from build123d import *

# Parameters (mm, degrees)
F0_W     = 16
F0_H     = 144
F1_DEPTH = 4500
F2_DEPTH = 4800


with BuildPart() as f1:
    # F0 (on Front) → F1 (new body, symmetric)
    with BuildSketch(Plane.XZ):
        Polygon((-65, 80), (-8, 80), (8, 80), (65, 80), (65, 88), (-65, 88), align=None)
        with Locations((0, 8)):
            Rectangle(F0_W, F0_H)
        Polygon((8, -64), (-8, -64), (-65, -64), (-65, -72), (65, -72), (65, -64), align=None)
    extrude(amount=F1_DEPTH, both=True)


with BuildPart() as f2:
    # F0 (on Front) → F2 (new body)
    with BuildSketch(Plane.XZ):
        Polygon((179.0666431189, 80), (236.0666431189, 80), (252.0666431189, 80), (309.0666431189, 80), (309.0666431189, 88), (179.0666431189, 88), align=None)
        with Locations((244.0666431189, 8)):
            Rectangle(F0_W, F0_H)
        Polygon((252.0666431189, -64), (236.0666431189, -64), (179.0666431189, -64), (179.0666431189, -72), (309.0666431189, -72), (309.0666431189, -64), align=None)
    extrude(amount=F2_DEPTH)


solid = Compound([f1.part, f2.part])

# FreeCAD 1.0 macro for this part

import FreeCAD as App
import Part
import Sketcher

V = App.Vector
Q = App.Units.Quantity


def add_polygon(sketch, points):
    """Adds a closed chain of lines whose ends are joined by coincident constraints."""
    first, n = sketch.GeometryCount, len(points)
    for a, b in zip(points, points[1:] + points[:1]):
        sketch.addGeometry(Part.LineSegment(App.Vector(*a, 0), App.Vector(*b, 0)), False)
    for i in range(n):
        sketch.addConstraint(Sketcher.Constraint("Coincident", first + i, 2, first + (i + 1) % n, 1))

doc = App.newDocument("Part")
body = doc.addObject("PartDesign::Body", "Body")

# Sketch on XZ plane
sketch1 = body.newObject("Sketcher::SketchObject", "Sketch")
sketch1.AttachmentSupport = (doc.getObject("XZ_Plane"), [""])
sketch1.MapMode = "FlatFace"
add_polygon(sketch1, [(-65, 80), (-8, 80), (-8, -64), (-65, -64), (-65, -72), (65, -72), (65, -64), (8, -64), (8, 80), (65, 80), (65, 88), (-65, 88)])  # lines 0-11
sketch1.addConstraint([
    Sketcher.Constraint("Horizontal", 0),
    Sketcher.Constraint("Vertical", 1),
    Sketcher.Constraint("Horizontal", 2),
    Sketcher.Constraint("Vertical", 3),
    Sketcher.Constraint("Horizontal", 4),
    Sketcher.Constraint("Vertical", 5),
    Sketcher.Constraint("Horizontal", 6),
    Sketcher.Constraint("Vertical", 7),
    Sketcher.Constraint("Horizontal", 8),
    Sketcher.Constraint("Vertical", 9),
    Sketcher.Constraint("Horizontal", 10),
    Sketcher.Constraint("Vertical", 11),
    Sketcher.Constraint("Symmetric", 2, 2, 5, 2, -2),
    Sketcher.Constraint("Symmetric", 0, 2, 7, 2, -2),
    Sketcher.Constraint("Vertical", 5, 2, 8, 2),
    Sketcher.Constraint("Vertical", 3, 2, 10, 2),
    Sketcher.Constraint("Equal", 5, 9),
    Sketcher.Constraint("DistanceX", 0, 1, 0, 2, Q("57 mm")),
    Sketcher.Constraint("DistanceX", 4, 1, 4, 2, Q("130 mm")),
    Sketcher.Constraint("DistanceY", 1, 2, 1, 1, Q("144 mm")),
    Sketcher.Constraint("DistanceY", 3, 2, 3, 1, Q("8 mm")),
    Sketcher.Constraint("DistanceY", -1, 1, 0, 2, Q("80 mm")),
])
pad1 = body.newObject("PartDesign::Pad", "Pad")
pad1.Profile = sketch1
pad1.Length = 9000
pad1.Midplane = True
body2 = doc.addObject("PartDesign::Body", "Body001")

# Sketch on XZ plane
sketch2 = body2.newObject("Sketcher::SketchObject", "Sketch001")
sketch2.AttachmentSupport = (doc.getObject("XZ_Plane001"), [""])
sketch2.MapMode = "FlatFace"
add_polygon(sketch2, [(179, 80), (236, 80), (236, -64), (179, -64), (179, -72), (309, -72), (309, -64), (252, -64), (252, 80), (309, 80), (309, 88), (179, 88)])  # lines 0-11
sketch2.addConstraint([
    Sketcher.Constraint("Horizontal", 0),
    Sketcher.Constraint("Vertical", 1),
    Sketcher.Constraint("Horizontal", 2),
    Sketcher.Constraint("Vertical", 3),
    Sketcher.Constraint("Horizontal", 4),
    Sketcher.Constraint("Vertical", 5),
    Sketcher.Constraint("Horizontal", 6),
    Sketcher.Constraint("Vertical", 7),
    Sketcher.Constraint("Horizontal", 8),
    Sketcher.Constraint("Vertical", 9),
    Sketcher.Constraint("Horizontal", 10),
    Sketcher.Constraint("Vertical", 11),
    Sketcher.Constraint("Horizontal", 2, 2, 5, 2),
    Sketcher.Constraint("Horizontal", 0, 2, 7, 2),
    Sketcher.Constraint("Vertical", 5, 2, 8, 2),
    Sketcher.Constraint("Vertical", 3, 2, 10, 2),
    Sketcher.Constraint("Equal", 2, 6),
    Sketcher.Constraint("Equal", 5, 9),
    Sketcher.Constraint("DistanceX", 0, 1, 0, 2, Q("57 mm")),
    Sketcher.Constraint("DistanceX", 4, 1, 4, 2, Q("130 mm")),
    Sketcher.Constraint("DistanceY", 1, 2, 1, 1, Q("144 mm")),
    Sketcher.Constraint("DistanceY", 3, 2, 3, 1, Q("8 mm")),
    Sketcher.Constraint("DistanceY", -1, 1, 0, 2, Q("80 mm")),
    Sketcher.Constraint("DistanceX", -1, 1, 0, 2, Q("236.066643 mm")),
])
pad2 = body2.newObject("PartDesign::Pad", "Pad001")
pad2.Profile = sketch2
pad2.Length = 4800

doc.recompute()
